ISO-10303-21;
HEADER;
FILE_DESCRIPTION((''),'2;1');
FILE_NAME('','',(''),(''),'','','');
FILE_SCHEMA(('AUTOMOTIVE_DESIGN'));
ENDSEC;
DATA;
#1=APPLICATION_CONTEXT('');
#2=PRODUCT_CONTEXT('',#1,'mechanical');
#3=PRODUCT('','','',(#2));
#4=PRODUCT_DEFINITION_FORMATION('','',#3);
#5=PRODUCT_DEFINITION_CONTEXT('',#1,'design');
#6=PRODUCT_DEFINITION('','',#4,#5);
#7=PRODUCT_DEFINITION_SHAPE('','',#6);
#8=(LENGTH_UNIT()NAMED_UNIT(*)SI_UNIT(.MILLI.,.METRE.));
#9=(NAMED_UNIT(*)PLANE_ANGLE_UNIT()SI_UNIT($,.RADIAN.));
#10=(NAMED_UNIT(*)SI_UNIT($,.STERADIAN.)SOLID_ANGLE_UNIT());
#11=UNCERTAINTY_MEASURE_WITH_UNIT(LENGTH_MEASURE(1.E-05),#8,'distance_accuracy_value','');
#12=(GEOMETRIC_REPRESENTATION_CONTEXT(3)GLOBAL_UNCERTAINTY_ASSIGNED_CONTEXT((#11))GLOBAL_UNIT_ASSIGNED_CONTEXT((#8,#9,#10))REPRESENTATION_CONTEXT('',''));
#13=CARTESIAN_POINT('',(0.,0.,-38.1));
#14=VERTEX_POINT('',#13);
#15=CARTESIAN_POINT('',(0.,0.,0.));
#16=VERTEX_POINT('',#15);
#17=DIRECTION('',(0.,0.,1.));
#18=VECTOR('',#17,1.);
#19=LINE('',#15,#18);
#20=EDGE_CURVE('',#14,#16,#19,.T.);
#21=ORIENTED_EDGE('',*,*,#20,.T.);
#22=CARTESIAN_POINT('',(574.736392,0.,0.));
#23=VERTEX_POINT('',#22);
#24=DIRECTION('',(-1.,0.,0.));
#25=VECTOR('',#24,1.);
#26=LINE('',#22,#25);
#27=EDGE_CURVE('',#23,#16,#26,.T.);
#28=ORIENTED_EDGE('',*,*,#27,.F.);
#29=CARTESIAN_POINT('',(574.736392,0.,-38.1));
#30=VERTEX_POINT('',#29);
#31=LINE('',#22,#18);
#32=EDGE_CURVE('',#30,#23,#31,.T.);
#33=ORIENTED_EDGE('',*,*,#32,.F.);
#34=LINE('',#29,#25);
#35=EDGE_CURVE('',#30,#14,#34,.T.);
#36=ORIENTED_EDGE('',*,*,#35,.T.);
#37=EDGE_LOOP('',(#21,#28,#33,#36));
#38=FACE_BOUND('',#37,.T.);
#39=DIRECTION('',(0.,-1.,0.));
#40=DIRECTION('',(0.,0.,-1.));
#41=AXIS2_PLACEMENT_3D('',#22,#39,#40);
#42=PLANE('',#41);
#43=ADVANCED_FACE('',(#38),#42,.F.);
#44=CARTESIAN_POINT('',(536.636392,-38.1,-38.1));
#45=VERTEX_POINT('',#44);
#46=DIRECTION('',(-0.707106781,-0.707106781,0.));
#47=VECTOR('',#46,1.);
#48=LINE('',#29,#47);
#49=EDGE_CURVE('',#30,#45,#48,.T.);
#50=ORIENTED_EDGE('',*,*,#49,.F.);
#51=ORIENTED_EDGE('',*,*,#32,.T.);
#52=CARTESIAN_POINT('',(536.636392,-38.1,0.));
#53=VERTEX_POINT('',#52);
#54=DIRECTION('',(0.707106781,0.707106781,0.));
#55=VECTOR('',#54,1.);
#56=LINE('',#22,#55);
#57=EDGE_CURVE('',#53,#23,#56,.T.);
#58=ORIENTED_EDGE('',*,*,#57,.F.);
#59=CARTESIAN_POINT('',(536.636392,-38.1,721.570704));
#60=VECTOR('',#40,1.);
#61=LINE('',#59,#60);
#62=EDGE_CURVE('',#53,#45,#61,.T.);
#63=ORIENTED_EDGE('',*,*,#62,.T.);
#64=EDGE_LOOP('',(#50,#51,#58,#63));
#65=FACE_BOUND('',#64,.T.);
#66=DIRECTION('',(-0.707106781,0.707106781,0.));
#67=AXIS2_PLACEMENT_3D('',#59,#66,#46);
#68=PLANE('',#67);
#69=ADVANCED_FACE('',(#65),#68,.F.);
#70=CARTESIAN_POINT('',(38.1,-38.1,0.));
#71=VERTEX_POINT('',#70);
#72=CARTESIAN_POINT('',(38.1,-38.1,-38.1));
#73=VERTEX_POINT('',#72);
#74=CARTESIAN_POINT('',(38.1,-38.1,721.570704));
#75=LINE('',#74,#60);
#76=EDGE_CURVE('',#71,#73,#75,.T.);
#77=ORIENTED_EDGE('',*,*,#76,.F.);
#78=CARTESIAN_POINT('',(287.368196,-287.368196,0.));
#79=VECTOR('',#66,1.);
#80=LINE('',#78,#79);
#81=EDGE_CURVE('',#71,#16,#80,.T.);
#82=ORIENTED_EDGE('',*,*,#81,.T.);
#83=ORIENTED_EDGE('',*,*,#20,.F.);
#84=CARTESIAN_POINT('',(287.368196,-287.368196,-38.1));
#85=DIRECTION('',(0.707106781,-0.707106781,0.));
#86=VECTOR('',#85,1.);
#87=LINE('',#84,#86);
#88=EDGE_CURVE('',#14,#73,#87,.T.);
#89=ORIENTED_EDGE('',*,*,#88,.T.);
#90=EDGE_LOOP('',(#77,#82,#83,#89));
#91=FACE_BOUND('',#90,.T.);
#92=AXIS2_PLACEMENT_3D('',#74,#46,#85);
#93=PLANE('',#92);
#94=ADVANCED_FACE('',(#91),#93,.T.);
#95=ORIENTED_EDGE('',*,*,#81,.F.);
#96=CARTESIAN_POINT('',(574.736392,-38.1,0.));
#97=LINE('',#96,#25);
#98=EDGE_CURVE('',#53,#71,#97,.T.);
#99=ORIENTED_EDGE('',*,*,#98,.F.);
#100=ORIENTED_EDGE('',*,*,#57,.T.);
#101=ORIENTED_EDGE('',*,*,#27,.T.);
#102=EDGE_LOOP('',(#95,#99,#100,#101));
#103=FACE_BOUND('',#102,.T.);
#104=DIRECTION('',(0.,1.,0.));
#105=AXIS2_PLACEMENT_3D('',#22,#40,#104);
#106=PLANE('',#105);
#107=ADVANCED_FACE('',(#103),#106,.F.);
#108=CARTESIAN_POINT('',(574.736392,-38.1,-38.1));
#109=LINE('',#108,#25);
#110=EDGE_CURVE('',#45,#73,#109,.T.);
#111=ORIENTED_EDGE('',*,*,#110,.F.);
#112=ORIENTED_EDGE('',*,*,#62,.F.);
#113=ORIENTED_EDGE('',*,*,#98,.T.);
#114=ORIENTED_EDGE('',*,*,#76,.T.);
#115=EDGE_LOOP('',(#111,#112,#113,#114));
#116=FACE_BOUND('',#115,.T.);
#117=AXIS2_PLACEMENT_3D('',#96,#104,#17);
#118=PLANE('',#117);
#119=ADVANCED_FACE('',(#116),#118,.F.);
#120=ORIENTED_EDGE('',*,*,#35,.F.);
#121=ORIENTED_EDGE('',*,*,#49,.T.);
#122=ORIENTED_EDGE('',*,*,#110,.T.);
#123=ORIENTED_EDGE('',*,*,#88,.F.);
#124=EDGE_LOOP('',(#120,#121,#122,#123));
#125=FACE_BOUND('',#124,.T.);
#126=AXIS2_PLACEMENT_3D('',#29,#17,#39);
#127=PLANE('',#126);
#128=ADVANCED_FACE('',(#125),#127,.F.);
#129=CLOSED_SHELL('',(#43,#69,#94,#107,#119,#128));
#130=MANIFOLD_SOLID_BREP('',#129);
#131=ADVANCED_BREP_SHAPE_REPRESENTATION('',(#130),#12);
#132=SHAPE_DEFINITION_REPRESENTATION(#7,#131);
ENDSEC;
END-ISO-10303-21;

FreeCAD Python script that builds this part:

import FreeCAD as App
import Part
import Sketcher
Q = App.Units.Quantity

doc = App.newDocument("Part")
params = doc.addObject("Spreadsheet::Sheet", "Params")
for row, (alias, value) in enumerate([
    ("sketch1_width", "1.5 in"),
    ("pad1_length", "574.736392 mm"),
], start=1):
    params.set(f"A{row}", alias)
    params.set(f"B{row}", "=" + value)
    params.setAlias(f"B{row}", alias)

body = doc.addObject("PartDesign::Body", "Body")

# Sketch on YZ plane
sketch1 = body.newObject("Sketcher::SketchObject", "Sketch")
sketch1.AttachmentSupport = (doc.getObject("YZ_Plane"), [""])
sketch1.MapMode = "FlatFace"
sketch1.addGeometry(Part.LineSegment(App.Vector(0, 0, 0), App.Vector(-38.1, 0, 0)), False)
sketch1.addGeometry(Part.LineSegment(App.Vector(-38.1, 0, 0), App.Vector(-38.1, -38.1, 0)), False)
sketch1.addGeometry(Part.LineSegment(App.Vector(-38.1, -38.1, 0), App.Vector(0, -38.1, 0)), False)
sketch1.addGeometry(Part.LineSegment(App.Vector(0, -38.1, 0), App.Vector(0, 0, 0)), False)
sketch1.addConstraint(Sketcher.Constraint("Coincident", 0, 2, 1, 1))
sketch1.addConstraint(Sketcher.Constraint("Coincident", 1, 2, 2, 1))
sketch1.addConstraint(Sketcher.Constraint("Coincident", 2, 2, 3, 1))
sketch1.addConstraint(Sketcher.Constraint("Coincident", 3, 2, 0, 1))
sketch1.addConstraint(Sketcher.Constraint("Horizontal", 0))
sketch1.addConstraint(Sketcher.Constraint("Vertical", 1))
sketch1.addConstraint(Sketcher.Constraint("Horizontal", 2))
sketch1.addConstraint(Sketcher.Constraint("Vertical", 3))
sketch1.addConstraint(Sketcher.Constraint("Coincident", 3, 2, -1, 1))
sketch1.addConstraint(Sketcher.Constraint("Equal", 2, 1))
sketch1.addConstraint(Sketcher.Constraint("DistanceX", 0, 2, 0, 1, Q("1.5 in")))
sketch1.setExpression("Constraints[10]", "Params.sketch1_width")
pad1 = body.newObject("PartDesign::Pad", "Pad")
pad1.Profile = sketch1
pad1.setExpression("Length", "Params.pad1_length")

# Sketch on XY plane
sketch2 = body.newObject("Sketcher::SketchObject", "Sketch001")
sketch2.AttachmentSupport = (doc.getObject("XY_Plane"), [""])
sketch2.MapMode = "FlatFace"
sketch2.addGeometry(Part.LineSegment(App.Vector(-1161.995712, -38.1, 0), App.Vector(38.1, -38.1, 0)), False)
sketch2.addGeometry(Part.LineSegment(App.Vector(38.1, -38.1, 0), App.Vector(-821.655048, 821.655048, 0)), False)
sketch2.addGeometry(Part.LineSegment(App.Vector(-821.655048, 821.655048, 0), App.Vector(-2982.499616, 1677.04203, 0)), False)
sketch2.addGeometry(Part.LineSegment(App.Vector(-2982.499616, 1677.04203, 0), App.Vector(-3322.84028, 817.286982, 0)), False)
sketch2.addGeometry(Part.LineSegment(App.Vector(-3322.84028, 817.286982, 0), App.Vector(-1161.995712, -38.1, 0)), False)
sketch2.addConstraint(Sketcher.Constraint("Coincident", 0, 2, 1, 1))
sketch2.addConstraint(Sketcher.Constraint("Coincident", 1, 2, 2, 1))
sketch2.addConstraint(Sketcher.Constraint("Coincident", 2, 2, 3, 1))
sketch2.addConstraint(Sketcher.Constraint("Coincident", 3, 2, 4, 1))
sketch2.addConstraint(Sketcher.Constraint("Coincident", 4, 2, 0, 1))
sketch2.addConstraint(Sketcher.Constraint("Horizontal", 0))
sketch2.addConstraint(Sketcher.Constraint("Perpendicular", 2, 3))
sketch2.addConstraint(Sketcher.Constraint("Perpendicular", 3, 4))
sketch2.addConstraint(Sketcher.Constraint("Equal", 2, 4))
sketch2.addConstraint(Sketcher.Constraint("Angle", 1, Q("135 deg")))
sketch2.addConstraint(Sketcher.Constraint("DistanceX", -1, 1, 0, 2, Q("1.5 in")))
sketch2.addConstraint(Sketcher.Constraint("DistanceY", 0, 2, -1, 1, Q("1.5 in")))
sketch2.addConstraint(Sketcher.Constraint("DistanceX", 0, 1, 0, 2, 1200.095712))
sketch2.addConstraint(Sketcher.Constraint("Distance", 1, 1215.877249))
sketch2.addConstraint(Sketcher.Constraint("DistanceY", -1, 1, 2, 2, 1677.04203))
pocket1 = body.newObject("PartDesign::Pocket", "Pocket")
pocket1.Profile = sketch2
pocket1.Type = "ThroughAll"
pocket1.Midplane = True

# Sketch on XY plane
sketch3 = body.newObject("Sketcher::SketchObject", "Sketch002")
sketch3.AttachmentSupport = (doc.getObject("XY_Plane"), [""])
sketch3.MapMode = "FlatFace"
sketch3.addGeometry(Part.LineSegment(App.Vector(536.636392, -38.1, 0), App.Vector(1736.732104, -38.1, 0)), False)
sketch3.addGeometry(Part.LineSegment(App.Vector(1736.732104, -38.1, 0), App.Vector(3897.576672, 817.286982, 0)), False)
sketch3.addGeometry(Part.LineSegment(App.Vector(3897.576672, 817.286982, 0), App.Vector(3557.236008, 1677.04203, 0)), False)
sketch3.addGeometry(Part.LineSegment(App.Vector(3557.236008, 1677.04203, 0), App.Vector(1396.391439, 821.655048, 0)), False)
sketch3.addGeometry(Part.LineSegment(App.Vector(1396.391439, 821.655048, 0), App.Vector(536.636392, -38.1, 0)), False)
sketch3.addConstraint(Sketcher.Constraint("Coincident", 0, 2, 1, 1))
sketch3.addConstraint(Sketcher.Constraint("Coincident", 1, 2, 2, 1))
sketch3.addConstraint(Sketcher.Constraint("Coincident", 2, 2, 3, 1))
sketch3.addConstraint(Sketcher.Constraint("Coincident", 3, 2, 4, 1))
sketch3.addConstraint(Sketcher.Constraint("Coincident", 4, 2, 0, 1))
sketch3.addConstraint(Sketcher.Constraint("Horizontal", 0))
sketch3.addConstraint(Sketcher.Constraint("Perpendicular", 1, 2))
sketch3.addConstraint(Sketcher.Constraint("Perpendicular", 2, 3))
sketch3.addConstraint(Sketcher.Constraint("Equal", 1, 3))
sketch3.addConstraint(Sketcher.Constraint("Angle", 4, Q("-135 deg")))
sketch3.addConstraint(Sketcher.Constraint("DistanceY", 0, 2, -1, 1, Q("1.5 in")))
sketch3.addConstraint(Sketcher.Constraint("DistanceX", 0, 1, 0, 2, 1200.095712))
sketch3.addConstraint(Sketcher.Constraint("Distance", 4, 1215.877249))
sketch3.addConstraint(Sketcher.Constraint("DistanceX", -1, 1, 1, 2, 3897.576672))
sketch3.addConstraint(Sketcher.Constraint("DistanceY", -1, 1, 2, 2, 1677.04203))
pocket2 = body.newObject("PartDesign::Pocket", "Pocket001")
pocket2.Profile = sketch3
pocket2.Type = "ThroughAll"
pocket2.Midplane = True

doc.recompute()
